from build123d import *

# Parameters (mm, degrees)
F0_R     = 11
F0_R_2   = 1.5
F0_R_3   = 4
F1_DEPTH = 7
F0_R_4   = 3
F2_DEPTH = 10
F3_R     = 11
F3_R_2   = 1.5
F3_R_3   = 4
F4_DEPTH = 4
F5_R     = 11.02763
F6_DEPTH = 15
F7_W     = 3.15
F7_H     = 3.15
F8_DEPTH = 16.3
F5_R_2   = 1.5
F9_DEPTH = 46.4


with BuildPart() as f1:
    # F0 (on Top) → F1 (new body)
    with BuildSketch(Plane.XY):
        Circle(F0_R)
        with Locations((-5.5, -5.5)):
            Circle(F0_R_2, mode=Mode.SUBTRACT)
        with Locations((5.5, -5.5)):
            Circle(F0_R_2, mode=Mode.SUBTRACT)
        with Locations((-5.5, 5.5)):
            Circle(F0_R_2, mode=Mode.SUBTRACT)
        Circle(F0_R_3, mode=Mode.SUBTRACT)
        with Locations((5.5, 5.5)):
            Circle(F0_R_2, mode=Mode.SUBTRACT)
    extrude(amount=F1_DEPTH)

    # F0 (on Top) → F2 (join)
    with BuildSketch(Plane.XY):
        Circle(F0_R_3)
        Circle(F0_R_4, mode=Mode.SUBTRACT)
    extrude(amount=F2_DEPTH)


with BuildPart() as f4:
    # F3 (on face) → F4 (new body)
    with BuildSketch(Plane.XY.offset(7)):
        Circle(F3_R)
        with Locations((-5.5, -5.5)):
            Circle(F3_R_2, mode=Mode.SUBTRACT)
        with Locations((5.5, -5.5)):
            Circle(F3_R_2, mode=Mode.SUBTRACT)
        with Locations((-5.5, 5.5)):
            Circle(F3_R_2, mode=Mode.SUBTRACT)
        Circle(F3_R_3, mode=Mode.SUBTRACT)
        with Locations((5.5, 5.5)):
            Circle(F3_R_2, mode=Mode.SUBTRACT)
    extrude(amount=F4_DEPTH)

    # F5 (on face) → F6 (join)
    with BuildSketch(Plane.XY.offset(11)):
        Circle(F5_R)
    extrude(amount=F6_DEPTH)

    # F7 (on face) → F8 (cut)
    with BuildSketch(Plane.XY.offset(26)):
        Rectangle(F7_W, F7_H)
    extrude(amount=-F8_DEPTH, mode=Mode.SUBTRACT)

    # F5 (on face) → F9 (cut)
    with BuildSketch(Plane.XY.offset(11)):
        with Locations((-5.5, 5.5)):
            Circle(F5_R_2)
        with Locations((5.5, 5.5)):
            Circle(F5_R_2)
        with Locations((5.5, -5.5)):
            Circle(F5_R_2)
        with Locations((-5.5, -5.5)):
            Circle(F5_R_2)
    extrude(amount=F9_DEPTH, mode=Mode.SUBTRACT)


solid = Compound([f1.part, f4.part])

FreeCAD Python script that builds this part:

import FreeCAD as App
import Part
import Sketcher
from FreeCAD import Vector


def add_polygon(sketch, points):
    """Adds a closed chain of lines whose ends are joined by coincident constraints."""
    first, n = sketch.GeometryCount, len(points)
    for a, b in zip(points, points[1:] + points[:1]):
        sketch.addGeometry(Part.LineSegment(App.Vector(*a, 0), App.Vector(*b, 0)), False)
    for i in range(n):
        sketch.addConstraint(Sketcher.Constraint("Coincident", first + i, 2, first + (i + 1) % n, 1))

doc = App.newDocument("Part")
body = doc.addObject("PartDesign::Body", "Body")

# Sketch on XY plane
sketch1 = body.newObject("Sketcher::SketchObject", "Sketch")
sketch1.AttachmentSupport = (doc.getObject("XY_Plane"), [""])
sketch1.MapMode = "FlatFace"
sketch1.addGeometry([
    Part.Circle(Vector(0, 0, 0), Vector(0, 0, 1), 11),  # 0
    Part.Circle(Vector(-5.5, -5.5, 0), Vector(0, 0, 1), 1.5),  # 1
    Part.Circle(Vector(5.5, -5.5, 0), Vector(0, 0, 1), 1.5),  # 2
    Part.Circle(Vector(-5.5, 5.5, 0), Vector(0, 0, 1), 1.5),  # 3
    Part.Circle(Vector(0, 0, 0), Vector(0, 0, 1), 4),  # 4
    Part.Circle(Vector(5.5, 5.5, 0), Vector(0, 0, 1), 1.5),  # 5
], False)
sketch1.addConstraint([
    Sketcher.Constraint("Coincident", 0, 3, -1, 1),
    Sketcher.Constraint("Coincident", 4, 3, -1, 1),
    Sketcher.Constraint("Equal", 1, 2),
    Sketcher.Constraint("Equal", 2, 3),
    Sketcher.Constraint("Equal", 3, 5),
    Sketcher.Constraint("Symmetric", 2, 3, 3, 3, -1, 1),
    Sketcher.Constraint("Symmetric", 1, 3, 5, 3, -1, 1),
    Sketcher.Constraint("Symmetric", 1, 3, 2, 3, -2),
    Sketcher.Constraint("Diameter", 0, 22.0),
    Sketcher.Constraint("Diameter", 1, 3.0),
    Sketcher.Constraint("Diameter", 4, 8.0),
    Sketcher.Constraint("DistanceX", 1, 3, 2, 3, 11.0),
    Sketcher.Constraint("DistanceY", 1, 3, 3, 3, 11.0),
])
pad1 = body.newObject("PartDesign::Pad", "Pad")
pad1.Profile = sketch1
pad1.Length = 7

# Sketch on XY plane
sketch2 = body.newObject("Sketcher::SketchObject", "Sketch001")
sketch2.AttachmentSupport = (doc.getObject("XY_Plane"), [""])
sketch2.MapMode = "FlatFace"
sketch2.addGeometry([
    Part.Circle(Vector(0, 0, 0), Vector(0, 0, 1), 4),
    Part.Circle(Vector(0, 0, 0), Vector(0, 0, 1), 3),
], False)
sketch2.addConstraint([
    Sketcher.Constraint("Coincident", 0, 3, -1, 1),
    Sketcher.Constraint("Coincident", 1, 3, -1, 1),
    Sketcher.Constraint("Diameter", 0, 8.0),
    Sketcher.Constraint("Diameter", 1, 6.0),
])
pad2 = body.newObject("PartDesign::Pad", "Pad001")
pad2.Profile = sketch2
pad2.Length = 10
body2 = doc.addObject("PartDesign::Body", "Body001")

# Sketch on XY plane
sketch3 = body2.newObject("Sketcher::SketchObject", "Sketch002")
sketch3.AttachmentSupport = (doc.getObject("XY_Plane001"), [""])
sketch3.MapMode = "FlatFace"
sketch3.AttachmentOffset = App.Placement(Vector(0, 0, 7), App.Rotation())
sketch3.addGeometry([
    Part.Circle(Vector(0, 0, 0), Vector(0, 0, 1), 11),  # 0
    Part.Circle(Vector(-5.5, -5.5, 0), Vector(0, 0, 1), 1.5),  # 1
    Part.Circle(Vector(5.5, -5.5, 0), Vector(0, 0, 1), 1.5),  # 2
    Part.Circle(Vector(-5.5, 5.5, 0), Vector(0, 0, 1), 1.5),  # 3
    Part.Circle(Vector(0, 0, 0), Vector(0, 0, 1), 4),  # 4
    Part.Circle(Vector(5.5, 5.5, 0), Vector(0, 0, 1), 1.5),  # 5
], False)
sketch3.addConstraint([
    Sketcher.Constraint("Coincident", 0, 3, -1, 1),
    Sketcher.Constraint("Coincident", 4, 3, -1, 1),
    Sketcher.Constraint("Equal", 1, 2),
    Sketcher.Constraint("Equal", 2, 3),
    Sketcher.Constraint("Equal", 3, 5),
    Sketcher.Constraint("Symmetric", 2, 3, 3, 3, -1, 1),
    Sketcher.Constraint("Symmetric", 1, 3, 5, 3, -1, 1),
    Sketcher.Constraint("Symmetric", 1, 3, 2, 3, -2),
    Sketcher.Constraint("Diameter", 0, 22.0),
    Sketcher.Constraint("Diameter", 1, 3.0),
    Sketcher.Constraint("Diameter", 4, 8.0),
    Sketcher.Constraint("DistanceX", 1, 3, 2, 3, 11.0),
    Sketcher.Constraint("DistanceY", 1, 3, 3, 3, 11.0),
])
pad3 = body2.newObject("PartDesign::Pad", "Pad002")
pad3.Profile = sketch3
pad3.Length = 4

# Sketch on XY plane
sketch4 = body2.newObject("Sketcher::SketchObject", "Sketch003")
sketch4.AttachmentSupport = (doc.getObject("XY_Plane001"), [""])
sketch4.MapMode = "FlatFace"
sketch4.AttachmentOffset = App.Placement(Vector(0, 0, 11), App.Rotation())
sketch4.addGeometry(Part.Circle(Vector(0, 0, 0), Vector(0, 0, 1), 11), False)
sketch4.addConstraint([
    Sketcher.Constraint("Coincident", 0, 3, -1, 1),
    Sketcher.Constraint("Diameter", 0, 22.05526),
])
pad4 = body2.newObject("PartDesign::Pad", "Pad003")
pad4.Profile = sketch4
pad4.Length = 15

# Sketch on XY plane
sketch5 = body2.newObject("Sketcher::SketchObject", "Sketch004")
sketch5.AttachmentSupport = (doc.getObject("XY_Plane001"), [""])
sketch5.MapMode = "FlatFace"
sketch5.AttachmentOffset = App.Placement(Vector(0, 0, 26), App.Rotation())
add_polygon(sketch5, [(-1.6, 1.6), (-1.6, -1.6), (1.6, -1.6), (1.6, 1.6)])  # lines 0-3
sketch5.addConstraint([
    Sketcher.Constraint("Vertical", 0),
    Sketcher.Constraint("Horizontal", 1),
    Sketcher.Constraint("Vertical", 2),
    Sketcher.Constraint("Horizontal", 3),
    Sketcher.Constraint("Symmetric", 0, 2, 2, 2, -1, 1),
    Sketcher.Constraint("Equal", 3, 0),
    Sketcher.Constraint("DistanceX", 1, 1, 1, 2, 3.15),
])
pocket1 = body2.newObject("PartDesign::Pocket", "Pocket")
pocket1.Profile = sketch5
pocket1.Length = 16.3

# Sketch on XY plane
sketch6 = body2.newObject("Sketcher::SketchObject", "Sketch005")
sketch6.AttachmentSupport = (doc.getObject("XY_Plane001"), [""])
sketch6.MapMode = "FlatFace"
sketch6.AttachmentOffset = App.Placement(Vector(0, 0, 11), App.Rotation())
sketch6.addGeometry([
    Part.Circle(Vector(-5.5, 5.5, 0), Vector(0, 0, 1), 1.5),
    Part.Circle(Vector(5.5, 5.5, 0), Vector(0, 0, 1), 1.5),
    Part.Circle(Vector(5.5, -5.5, 0), Vector(0, 0, 1), 1.5),
    Part.Circle(Vector(-5.5, -5.5, 0), Vector(0, 0, 1), 1.5),
], False)
sketch6.addConstraint([
    Sketcher.Constraint("Equal", 0, 1),
    Sketcher.Constraint("Equal", 1, 2),
    Sketcher.Constraint("Equal", 2, 3),
    Sketcher.Constraint("Symmetric", 0, 3, 2, 3, -1, 1),
    Sketcher.Constraint("Symmetric", 1, 3, 3, 3, -1, 1),
    Sketcher.Constraint("Symmetric", 0, 3, 1, 3, -2),
    Sketcher.Constraint("Diameter", 0, 3.0),
    Sketcher.Constraint("DistanceX", 0, 3, 1, 3, 11.0),
    Sketcher.Constraint("DistanceY", 2, 3, 1, 3, 11.0),
])
pocket2 = body2.newObject("PartDesign::Pocket", "Pocket001")
pocket2.Profile = sketch6
pocket2.Length = 46.4
pocket2.Reversed = True

doc.recompute()
